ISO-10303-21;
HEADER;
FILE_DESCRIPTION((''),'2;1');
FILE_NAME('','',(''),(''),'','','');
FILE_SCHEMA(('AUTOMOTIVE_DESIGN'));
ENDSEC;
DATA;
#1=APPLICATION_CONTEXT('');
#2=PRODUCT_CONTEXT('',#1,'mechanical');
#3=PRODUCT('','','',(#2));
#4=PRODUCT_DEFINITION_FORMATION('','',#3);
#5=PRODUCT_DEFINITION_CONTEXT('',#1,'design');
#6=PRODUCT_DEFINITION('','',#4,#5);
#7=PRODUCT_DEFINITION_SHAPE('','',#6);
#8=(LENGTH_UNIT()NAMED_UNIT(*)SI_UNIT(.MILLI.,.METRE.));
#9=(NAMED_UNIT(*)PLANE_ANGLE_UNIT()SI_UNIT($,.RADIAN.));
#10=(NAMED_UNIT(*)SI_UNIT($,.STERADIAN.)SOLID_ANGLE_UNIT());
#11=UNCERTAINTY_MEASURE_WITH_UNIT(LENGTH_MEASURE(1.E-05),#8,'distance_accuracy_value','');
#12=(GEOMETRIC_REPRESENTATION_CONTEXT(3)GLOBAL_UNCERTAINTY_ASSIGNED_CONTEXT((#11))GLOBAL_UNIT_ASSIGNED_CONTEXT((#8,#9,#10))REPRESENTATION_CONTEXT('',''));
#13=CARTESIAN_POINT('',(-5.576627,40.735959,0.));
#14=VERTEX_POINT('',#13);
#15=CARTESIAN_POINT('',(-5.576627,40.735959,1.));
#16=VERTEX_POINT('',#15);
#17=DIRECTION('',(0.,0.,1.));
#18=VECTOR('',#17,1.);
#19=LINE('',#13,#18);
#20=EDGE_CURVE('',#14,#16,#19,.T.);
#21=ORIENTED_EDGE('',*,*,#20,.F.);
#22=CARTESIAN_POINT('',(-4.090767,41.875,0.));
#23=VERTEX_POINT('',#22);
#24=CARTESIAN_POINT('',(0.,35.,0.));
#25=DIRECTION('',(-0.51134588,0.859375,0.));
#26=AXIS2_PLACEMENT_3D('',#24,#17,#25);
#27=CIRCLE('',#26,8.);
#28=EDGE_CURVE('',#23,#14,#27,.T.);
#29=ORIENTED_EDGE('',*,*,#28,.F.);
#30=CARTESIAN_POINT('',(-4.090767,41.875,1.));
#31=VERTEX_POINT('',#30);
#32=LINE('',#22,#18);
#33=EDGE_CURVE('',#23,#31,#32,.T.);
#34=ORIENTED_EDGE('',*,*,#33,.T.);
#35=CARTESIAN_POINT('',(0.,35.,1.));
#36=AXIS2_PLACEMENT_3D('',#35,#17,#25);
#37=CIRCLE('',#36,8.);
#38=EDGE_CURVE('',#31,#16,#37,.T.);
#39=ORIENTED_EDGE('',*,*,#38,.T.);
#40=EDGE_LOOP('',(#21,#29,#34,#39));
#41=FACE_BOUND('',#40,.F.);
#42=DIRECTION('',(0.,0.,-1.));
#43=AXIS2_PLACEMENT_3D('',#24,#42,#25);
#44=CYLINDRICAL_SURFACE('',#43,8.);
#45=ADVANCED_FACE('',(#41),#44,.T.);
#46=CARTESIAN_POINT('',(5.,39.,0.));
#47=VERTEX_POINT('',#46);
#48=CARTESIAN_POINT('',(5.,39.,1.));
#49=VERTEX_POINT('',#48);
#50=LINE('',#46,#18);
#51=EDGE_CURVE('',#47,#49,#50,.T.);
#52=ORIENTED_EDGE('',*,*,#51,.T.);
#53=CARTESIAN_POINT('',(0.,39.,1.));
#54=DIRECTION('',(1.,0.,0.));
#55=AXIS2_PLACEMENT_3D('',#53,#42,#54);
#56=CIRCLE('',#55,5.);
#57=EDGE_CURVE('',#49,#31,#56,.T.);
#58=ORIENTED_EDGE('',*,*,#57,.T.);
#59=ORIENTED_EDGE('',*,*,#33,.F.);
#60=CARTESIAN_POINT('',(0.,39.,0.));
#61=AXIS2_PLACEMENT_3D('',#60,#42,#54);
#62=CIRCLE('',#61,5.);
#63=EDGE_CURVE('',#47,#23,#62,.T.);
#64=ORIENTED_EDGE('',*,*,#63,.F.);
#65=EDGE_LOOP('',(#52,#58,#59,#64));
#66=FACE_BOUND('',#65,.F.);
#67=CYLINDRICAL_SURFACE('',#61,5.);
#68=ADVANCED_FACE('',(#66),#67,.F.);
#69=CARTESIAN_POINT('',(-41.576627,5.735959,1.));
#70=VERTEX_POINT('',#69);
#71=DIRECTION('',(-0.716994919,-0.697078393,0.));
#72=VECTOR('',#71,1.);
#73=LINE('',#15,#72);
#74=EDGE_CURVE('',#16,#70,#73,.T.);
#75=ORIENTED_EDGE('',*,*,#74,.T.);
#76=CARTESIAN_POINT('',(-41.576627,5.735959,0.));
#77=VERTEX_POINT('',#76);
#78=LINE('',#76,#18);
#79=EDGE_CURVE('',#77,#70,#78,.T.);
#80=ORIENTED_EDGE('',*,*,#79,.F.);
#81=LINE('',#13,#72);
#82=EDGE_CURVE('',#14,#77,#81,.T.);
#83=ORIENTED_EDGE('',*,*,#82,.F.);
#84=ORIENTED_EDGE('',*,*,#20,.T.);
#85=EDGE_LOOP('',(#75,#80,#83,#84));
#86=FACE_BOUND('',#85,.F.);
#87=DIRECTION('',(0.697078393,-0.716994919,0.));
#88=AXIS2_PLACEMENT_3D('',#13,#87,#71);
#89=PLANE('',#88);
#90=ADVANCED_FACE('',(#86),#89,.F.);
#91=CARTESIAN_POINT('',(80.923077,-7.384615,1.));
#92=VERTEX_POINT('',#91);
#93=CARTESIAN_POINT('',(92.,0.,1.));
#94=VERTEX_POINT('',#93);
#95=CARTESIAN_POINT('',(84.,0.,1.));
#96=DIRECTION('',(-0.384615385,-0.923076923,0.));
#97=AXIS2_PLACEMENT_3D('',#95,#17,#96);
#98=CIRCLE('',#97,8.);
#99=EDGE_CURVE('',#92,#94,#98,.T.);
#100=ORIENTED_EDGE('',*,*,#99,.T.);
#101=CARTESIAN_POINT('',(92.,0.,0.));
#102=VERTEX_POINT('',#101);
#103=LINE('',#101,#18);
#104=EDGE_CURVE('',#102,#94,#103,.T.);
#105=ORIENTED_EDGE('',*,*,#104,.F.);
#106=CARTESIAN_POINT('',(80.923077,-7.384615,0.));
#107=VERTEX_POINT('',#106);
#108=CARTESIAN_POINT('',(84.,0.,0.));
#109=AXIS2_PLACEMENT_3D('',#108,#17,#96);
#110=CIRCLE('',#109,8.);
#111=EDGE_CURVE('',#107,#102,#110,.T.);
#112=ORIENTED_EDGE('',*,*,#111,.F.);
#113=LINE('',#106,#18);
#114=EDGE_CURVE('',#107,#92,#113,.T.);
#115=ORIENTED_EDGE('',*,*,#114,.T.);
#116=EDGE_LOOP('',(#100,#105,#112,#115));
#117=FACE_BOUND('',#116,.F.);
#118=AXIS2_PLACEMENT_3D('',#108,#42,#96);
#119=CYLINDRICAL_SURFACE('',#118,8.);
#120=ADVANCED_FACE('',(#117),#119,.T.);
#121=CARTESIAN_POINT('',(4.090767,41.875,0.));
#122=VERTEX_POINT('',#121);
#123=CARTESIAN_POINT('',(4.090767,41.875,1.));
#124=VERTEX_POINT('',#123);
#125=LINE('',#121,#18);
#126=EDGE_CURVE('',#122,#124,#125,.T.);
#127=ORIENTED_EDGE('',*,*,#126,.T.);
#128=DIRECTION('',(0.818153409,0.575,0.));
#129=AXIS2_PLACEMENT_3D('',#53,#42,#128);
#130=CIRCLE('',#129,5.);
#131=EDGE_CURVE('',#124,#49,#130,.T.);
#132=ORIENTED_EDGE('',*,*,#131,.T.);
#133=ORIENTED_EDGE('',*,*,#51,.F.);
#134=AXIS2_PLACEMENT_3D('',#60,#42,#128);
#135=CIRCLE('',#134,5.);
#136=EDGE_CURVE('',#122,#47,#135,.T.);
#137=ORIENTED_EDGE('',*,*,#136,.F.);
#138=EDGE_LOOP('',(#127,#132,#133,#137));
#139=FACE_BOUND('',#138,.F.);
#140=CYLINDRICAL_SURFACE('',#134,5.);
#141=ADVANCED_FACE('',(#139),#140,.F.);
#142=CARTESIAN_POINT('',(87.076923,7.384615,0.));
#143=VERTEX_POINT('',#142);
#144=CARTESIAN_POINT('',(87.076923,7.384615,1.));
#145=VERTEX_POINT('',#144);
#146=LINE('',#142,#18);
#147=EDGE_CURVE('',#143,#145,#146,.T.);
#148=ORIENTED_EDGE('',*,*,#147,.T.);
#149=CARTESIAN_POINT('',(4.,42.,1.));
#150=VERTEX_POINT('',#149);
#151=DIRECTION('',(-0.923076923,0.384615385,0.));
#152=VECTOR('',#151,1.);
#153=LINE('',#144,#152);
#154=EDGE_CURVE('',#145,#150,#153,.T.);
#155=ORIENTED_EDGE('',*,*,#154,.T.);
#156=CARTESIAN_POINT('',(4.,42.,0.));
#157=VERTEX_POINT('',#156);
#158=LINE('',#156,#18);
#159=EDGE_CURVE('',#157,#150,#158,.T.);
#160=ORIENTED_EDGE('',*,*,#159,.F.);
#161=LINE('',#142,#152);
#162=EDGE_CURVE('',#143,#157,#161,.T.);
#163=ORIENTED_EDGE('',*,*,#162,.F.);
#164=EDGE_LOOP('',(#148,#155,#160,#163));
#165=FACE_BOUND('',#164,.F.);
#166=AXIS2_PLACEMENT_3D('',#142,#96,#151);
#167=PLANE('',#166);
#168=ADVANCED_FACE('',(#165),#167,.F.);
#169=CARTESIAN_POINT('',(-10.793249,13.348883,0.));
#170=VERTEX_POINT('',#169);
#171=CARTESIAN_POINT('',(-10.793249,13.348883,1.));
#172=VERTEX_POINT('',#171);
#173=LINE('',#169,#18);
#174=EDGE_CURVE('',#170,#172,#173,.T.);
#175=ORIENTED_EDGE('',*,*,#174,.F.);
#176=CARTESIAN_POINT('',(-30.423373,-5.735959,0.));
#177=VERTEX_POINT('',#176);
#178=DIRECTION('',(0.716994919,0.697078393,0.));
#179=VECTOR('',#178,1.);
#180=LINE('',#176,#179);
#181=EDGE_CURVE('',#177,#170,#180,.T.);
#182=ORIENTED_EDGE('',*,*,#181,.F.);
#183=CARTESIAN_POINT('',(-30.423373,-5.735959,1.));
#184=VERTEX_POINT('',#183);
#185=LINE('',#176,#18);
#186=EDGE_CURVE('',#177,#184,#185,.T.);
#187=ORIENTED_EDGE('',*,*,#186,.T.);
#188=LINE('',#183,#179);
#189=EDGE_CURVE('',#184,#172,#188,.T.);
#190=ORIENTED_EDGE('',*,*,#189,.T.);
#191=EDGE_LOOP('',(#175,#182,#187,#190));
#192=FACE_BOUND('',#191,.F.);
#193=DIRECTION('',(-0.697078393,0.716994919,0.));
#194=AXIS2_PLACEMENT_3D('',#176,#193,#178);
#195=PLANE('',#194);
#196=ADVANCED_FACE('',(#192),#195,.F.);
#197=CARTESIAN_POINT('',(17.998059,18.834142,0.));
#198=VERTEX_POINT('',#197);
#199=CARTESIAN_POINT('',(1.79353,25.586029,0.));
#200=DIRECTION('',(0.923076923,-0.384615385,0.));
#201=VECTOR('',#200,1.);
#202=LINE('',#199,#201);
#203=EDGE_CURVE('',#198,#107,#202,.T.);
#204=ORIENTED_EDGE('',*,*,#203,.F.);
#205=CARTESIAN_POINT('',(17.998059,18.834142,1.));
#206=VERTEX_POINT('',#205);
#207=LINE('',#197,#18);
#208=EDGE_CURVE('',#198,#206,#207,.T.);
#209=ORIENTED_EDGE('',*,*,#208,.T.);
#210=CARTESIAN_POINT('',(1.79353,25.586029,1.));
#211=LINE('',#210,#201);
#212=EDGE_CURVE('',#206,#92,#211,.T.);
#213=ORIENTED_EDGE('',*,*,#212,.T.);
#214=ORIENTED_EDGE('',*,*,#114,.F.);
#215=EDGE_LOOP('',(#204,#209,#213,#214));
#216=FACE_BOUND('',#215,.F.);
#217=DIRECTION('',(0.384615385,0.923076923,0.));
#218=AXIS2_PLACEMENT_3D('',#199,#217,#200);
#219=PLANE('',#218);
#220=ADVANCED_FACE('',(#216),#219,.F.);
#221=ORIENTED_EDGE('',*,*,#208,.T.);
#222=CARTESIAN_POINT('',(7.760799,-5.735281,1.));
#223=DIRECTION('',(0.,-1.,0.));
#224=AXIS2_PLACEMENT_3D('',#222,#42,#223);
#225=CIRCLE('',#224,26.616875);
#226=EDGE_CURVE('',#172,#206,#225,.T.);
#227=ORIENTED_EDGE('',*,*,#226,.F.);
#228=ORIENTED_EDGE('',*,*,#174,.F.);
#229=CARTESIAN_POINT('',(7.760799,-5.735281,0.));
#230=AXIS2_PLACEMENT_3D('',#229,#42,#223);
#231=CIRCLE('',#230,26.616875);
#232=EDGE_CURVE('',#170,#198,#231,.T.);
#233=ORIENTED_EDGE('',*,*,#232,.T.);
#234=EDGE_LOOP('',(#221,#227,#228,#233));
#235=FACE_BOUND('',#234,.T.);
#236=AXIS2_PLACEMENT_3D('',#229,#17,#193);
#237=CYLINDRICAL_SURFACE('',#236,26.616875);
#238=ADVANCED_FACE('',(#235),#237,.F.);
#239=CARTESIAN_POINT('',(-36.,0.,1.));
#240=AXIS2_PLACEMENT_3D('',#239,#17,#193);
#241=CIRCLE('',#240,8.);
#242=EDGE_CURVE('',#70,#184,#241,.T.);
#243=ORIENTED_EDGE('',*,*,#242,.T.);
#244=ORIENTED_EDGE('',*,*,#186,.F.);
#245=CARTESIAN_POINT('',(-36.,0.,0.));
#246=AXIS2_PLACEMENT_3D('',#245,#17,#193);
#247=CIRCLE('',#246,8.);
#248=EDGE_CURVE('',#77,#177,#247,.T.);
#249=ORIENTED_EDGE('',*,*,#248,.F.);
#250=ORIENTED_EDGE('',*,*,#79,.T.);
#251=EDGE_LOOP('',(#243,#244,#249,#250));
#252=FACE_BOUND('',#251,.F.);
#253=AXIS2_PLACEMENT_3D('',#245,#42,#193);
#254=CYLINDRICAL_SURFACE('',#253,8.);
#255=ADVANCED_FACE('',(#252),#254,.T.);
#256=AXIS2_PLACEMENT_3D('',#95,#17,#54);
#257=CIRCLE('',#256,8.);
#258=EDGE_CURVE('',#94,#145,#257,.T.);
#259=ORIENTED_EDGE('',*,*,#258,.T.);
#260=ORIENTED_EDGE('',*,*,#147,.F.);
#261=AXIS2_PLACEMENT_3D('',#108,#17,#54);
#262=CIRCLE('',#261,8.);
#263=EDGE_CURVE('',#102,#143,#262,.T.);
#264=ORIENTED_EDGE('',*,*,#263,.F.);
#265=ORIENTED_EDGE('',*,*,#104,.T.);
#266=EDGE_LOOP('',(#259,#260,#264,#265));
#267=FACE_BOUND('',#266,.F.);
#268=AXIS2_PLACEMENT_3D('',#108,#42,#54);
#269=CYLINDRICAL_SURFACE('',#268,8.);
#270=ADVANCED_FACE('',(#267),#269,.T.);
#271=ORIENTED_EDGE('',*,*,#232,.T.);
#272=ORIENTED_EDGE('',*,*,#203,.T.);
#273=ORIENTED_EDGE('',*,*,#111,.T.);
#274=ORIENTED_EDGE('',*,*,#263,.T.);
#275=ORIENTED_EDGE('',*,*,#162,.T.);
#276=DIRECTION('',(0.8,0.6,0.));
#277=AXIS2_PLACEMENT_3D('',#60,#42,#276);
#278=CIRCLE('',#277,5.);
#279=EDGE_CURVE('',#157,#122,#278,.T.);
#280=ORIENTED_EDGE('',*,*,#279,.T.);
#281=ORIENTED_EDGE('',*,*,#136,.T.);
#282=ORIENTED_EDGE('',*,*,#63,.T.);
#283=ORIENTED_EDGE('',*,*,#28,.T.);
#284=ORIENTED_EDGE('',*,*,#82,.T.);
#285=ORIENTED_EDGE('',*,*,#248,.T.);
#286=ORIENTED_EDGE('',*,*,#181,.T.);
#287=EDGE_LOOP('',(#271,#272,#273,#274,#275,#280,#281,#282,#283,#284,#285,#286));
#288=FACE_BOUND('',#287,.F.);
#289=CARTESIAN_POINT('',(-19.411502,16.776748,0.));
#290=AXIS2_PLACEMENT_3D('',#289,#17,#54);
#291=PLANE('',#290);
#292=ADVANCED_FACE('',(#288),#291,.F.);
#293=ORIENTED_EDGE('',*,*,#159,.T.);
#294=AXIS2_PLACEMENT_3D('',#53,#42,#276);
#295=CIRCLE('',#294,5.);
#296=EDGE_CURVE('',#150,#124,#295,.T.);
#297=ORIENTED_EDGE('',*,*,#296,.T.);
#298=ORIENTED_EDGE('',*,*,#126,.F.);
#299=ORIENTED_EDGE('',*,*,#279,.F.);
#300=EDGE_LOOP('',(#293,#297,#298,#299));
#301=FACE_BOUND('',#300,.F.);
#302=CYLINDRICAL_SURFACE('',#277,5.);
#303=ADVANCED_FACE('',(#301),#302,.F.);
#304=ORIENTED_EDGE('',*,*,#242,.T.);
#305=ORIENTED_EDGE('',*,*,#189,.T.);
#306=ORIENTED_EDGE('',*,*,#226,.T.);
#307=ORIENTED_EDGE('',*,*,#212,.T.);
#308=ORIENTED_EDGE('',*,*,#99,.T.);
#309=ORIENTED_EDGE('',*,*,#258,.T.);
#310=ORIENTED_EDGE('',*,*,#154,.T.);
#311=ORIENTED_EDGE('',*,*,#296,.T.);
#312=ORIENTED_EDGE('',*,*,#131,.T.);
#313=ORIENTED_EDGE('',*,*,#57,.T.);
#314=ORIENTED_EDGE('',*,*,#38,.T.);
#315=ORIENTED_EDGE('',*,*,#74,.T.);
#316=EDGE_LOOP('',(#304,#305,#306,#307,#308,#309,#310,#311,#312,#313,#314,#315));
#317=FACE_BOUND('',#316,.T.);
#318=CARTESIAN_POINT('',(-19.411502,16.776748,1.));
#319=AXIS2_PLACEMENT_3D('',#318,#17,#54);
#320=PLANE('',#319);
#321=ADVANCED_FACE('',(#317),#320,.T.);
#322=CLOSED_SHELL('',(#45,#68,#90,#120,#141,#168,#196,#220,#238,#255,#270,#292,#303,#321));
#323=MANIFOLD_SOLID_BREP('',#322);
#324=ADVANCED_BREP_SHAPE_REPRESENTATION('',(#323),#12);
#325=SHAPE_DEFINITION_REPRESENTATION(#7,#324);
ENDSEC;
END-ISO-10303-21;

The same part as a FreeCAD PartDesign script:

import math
import FreeCAD as App
import Part
import Sketcher


def edges_at(feature, points):
    """Names of the edges that pass closest to the given points."""
    edges = feature.Shape.Edges
    near = lambda p: min(range(len(edges)), key=lambda i: edges[i].distToShape(Part.Vertex(*p))[0])
    return sorted({f"Edge{near(p) + 1}" for p in points})

doc = App.newDocument("Part")
params = doc.addObject("Spreadsheet::Sheet", "Params")
for row, (alias, value) in enumerate([
    ("sketch1_radius", "8 mm"),
    ("sketch1_radius2", "5 mm"),
    ("sketch1_length", "90 mm"),
    ("pad1_length", "1 mm"),
    ("fillet_radius", "26.616875 mm"),
], start=1):
    params.set(f"A{row}", alias)
    params.set(f"B{row}", "=" + value)
    params.setAlias(f"B{row}", alias)

body = doc.addObject("PartDesign::Body", "Body")

sketch1 = body.newObject("Sketcher::SketchObject", "Sketch")
sketch1.AttachmentSupport = (doc.getObject("XY_Plane"), [""])
sketch1.MapMode = "FlatFace"
sketch1.addGeometry(Part.LineSegment(App.Vector(-30.423373, -5.735959, 0), App.Vector(1.79353, 25.586029, 0)), False)
sketch1.addGeometry(Part.LineSegment(App.Vector(1.79353, 25.586029, 0), App.Vector(80.923077, -7.384615, 0)), False)
sketch1.addGeometry(Part.ArcOfCircle(Part.Circle(App.Vector(84, 0, 0), App.Vector(0, 0, 1), 8), math.radians(-112.619865), math.radians(0)), False)
sketch1.addGeometry(Part.ArcOfCircle(Part.Circle(App.Vector(84, 0, 0), App.Vector(0, 0, 1), 8), math.radians(0), math.radians(67.380135)), False)
sketch1.addGeometry(Part.LineSegment(App.Vector(87.076923, 7.384615, 0), App.Vector(4, 42, 0)), False)
sketch1.addGeometry(Part.ArcOfCircle(Part.Circle(App.Vector(0, 39, 0), App.Vector(0, 0, 1), 5), math.radians(35.099632), math.radians(36.869898)), False)
sketch1.addGeometry(Part.ArcOfCircle(Part.Circle(App.Vector(0, 39, 0), App.Vector(0, 0, 1), 5), math.radians(0), math.radians(35.099632)), False)
sketch1.addGeometry(Part.ArcOfCircle(Part.Circle(App.Vector(0, 39, 0), App.Vector(0, 0, 1), 5), math.radians(144.900368), math.radians(360)), False)
sketch1.addGeometry(Part.ArcOfCircle(Part.Circle(App.Vector(0, 35, 0), App.Vector(0, 0, 1), 8), math.radians(120.75352), math.radians(134.193071)), False)
sketch1.addGeometry(Part.LineSegment(App.Vector(-5.576627, 40.735959, 0), App.Vector(-41.576627, 5.735959, 0)), False)
sketch1.addGeometry(Part.ArcOfCircle(Part.Circle(App.Vector(-36, 0, 0), App.Vector(0, 0, 1), 8), math.radians(134.193071), math.radians(314.193071)), False)
sketch1.addConstraint(Sketcher.Constraint("Coincident", 0, 2, 1, 1))
sketch1.addConstraint(Sketcher.Constraint("Tangent", 1, 2, 2, 1))
sketch1.addConstraint(Sketcher.Constraint("Tangent", 2, 2, 3, 1))
sketch1.addConstraint(Sketcher.Constraint("Tangent", 3, 2, 4, 1))
sketch1.addConstraint(Sketcher.Constraint("Coincident", 4, 2, 5, 2))
sketch1.addConstraint(Sketcher.Constraint("Tangent", 5, 1, 6, 2))
sketch1.addConstraint(Sketcher.Constraint("Tangent", 6, 1, 7, 2))
sketch1.addConstraint(Sketcher.Constraint("Coincident", 7, 1, 8, 1))
sketch1.addConstraint(Sketcher.Constraint("Tangent", 8, 2, 9, 1))
sketch1.addConstraint(Sketcher.Constraint("Tangent", 9, 2, 10, 1))
sketch1.addConstraint(Sketcher.Constraint("Tangent", 10, 2, 0, 1))
sketch1.addConstraint(Sketcher.Constraint("Coincident", 7, 3, 5, 3))
sketch1.addConstraint(Sketcher.Constraint("Equal", 2, 3))
sketch1.addConstraint(Sketcher.Constraint("Equal", 3, 8))
sketch1.addConstraint(Sketcher.Constraint("Equal", 8, 10))
sketch1.addConstraint(Sketcher.Constraint("Symmetric", 5, 1, 7, 1, -2))
sketch1.addConstraint(Sketcher.Constraint("PointOnObject", 2, 3, -1))
sketch1.addConstraint(Sketcher.Constraint("PointOnObject", 8, 3, -2))
sketch1.addConstraint(Sketcher.Constraint("PointOnObject", 10, 3, -1))
sketch1.addConstraint(Sketcher.Constraint("PointOnObject", 2, 2, -1))
sketch1.addConstraint(Sketcher.Constraint("Parallel", 1, 4))
sketch1.addConstraint(Sketcher.Constraint("Parallel", 0, 9))
sketch1.addConstraint(Sketcher.Constraint("Horizontal", 7, 3, 6, 1))
sketch1.addConstraint(Sketcher.Constraint("Radius", 2, 8.0))
sketch1.addConstraint(Sketcher.Constraint("Radius", 5, 5.0))
sketch1.addConstraint(Sketcher.Constraint("Distance", 4, 90.0))
sketch1.addConstraint(Sketcher.Constraint("DistanceX", -1, 1, 2, 3, 84.0))
sketch1.addConstraint(Sketcher.Constraint("DistanceY", -1, 1, 5, 3, 39.0))
sketch1.addConstraint(Sketcher.Constraint("DistanceY", -1, 1, 8, 3, 35.0))
sketch1.addConstraint(Sketcher.Constraint("DistanceX", 10, 3, -1, 1, 36.0))
sketch1.setExpression("Constraints[23]", "Params.sketch1_radius")
sketch1.setExpression("Constraints[24]", "Params.sketch1_radius2")
sketch1.setExpression("Constraints[25]", "Params.sketch1_length")
pad1 = body.newObject("PartDesign::Pad", "Pad")
pad1.Profile = sketch1
pad1.setExpression("Length", "Params.pad1_length")
doc.recompute()

fillet = body.newObject("PartDesign::Fillet", "Fillet")
fillet.Base = (pad1, edges_at(pad1, [(1.794, 25.586, 0.5)]))
fillet.setExpression("Radius", "Params.fillet_radius")

doc.recompute()
